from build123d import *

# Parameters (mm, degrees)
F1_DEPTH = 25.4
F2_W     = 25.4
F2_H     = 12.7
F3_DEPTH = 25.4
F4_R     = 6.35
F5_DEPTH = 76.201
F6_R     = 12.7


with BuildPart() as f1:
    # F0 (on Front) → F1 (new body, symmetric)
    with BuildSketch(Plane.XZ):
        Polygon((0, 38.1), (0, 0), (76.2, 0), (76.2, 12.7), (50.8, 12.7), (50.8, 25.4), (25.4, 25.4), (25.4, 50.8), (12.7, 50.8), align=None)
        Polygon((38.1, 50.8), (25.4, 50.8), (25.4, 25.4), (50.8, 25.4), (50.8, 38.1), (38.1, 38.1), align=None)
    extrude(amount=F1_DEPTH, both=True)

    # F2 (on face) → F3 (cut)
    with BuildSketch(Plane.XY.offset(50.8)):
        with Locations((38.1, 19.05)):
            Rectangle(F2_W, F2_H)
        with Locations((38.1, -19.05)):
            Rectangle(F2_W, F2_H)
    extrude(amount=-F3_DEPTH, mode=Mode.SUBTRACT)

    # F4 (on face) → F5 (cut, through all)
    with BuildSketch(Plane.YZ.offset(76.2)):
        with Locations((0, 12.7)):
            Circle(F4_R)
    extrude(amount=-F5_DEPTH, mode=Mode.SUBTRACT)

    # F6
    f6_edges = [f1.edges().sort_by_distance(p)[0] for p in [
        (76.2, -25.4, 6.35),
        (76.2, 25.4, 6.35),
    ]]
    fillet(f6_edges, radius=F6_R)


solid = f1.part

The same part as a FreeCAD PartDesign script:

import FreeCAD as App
import Part
import Sketcher

V = App.Vector
Q = App.Units.Quantity


def edges_at(feature, points):
    """Names of the edges that pass closest to the given points."""
    edges = feature.Shape.Edges
    near = lambda p: min(range(len(edges)), key=lambda i: edges[i].distToShape(Part.Vertex(*p))[0])
    return sorted({f"Edge{near(p) + 1}" for p in points})

doc = App.newDocument("Part")
params = doc.addObject("Spreadsheet::Sheet", "Params")
for row, (alias, value) in enumerate([
    ("sketch1_width", "3 in"),
    ("sketch1_width2", "1 in"),
    ("sketch1_width3", "0.5 in"),
    ("pad1_length", "2 in"),
    ("sketch2_width", "1 in"),
    ("sketch2_height", "0.5 in"),
    ("pocket1_length", "1 in"),
    ("sketch3_diameter", "0.5 in"),
    ("fillet_radius", "0.5 in"),
], start=1):
    params.set(f"A{row}", alias)
    params.set(f"B{row}", "=" + value)
    params.setAlias(f"B{row}", alias)

body = doc.addObject("PartDesign::Body", "Body")

sketch1 = body.newObject("Sketcher::SketchObject", "Sketch")
sketch1.AttachmentSupport = (doc.getObject("XZ_Plane"), [""])
sketch1.MapMode = "FlatFace"
sketch1.addGeometry([
    Part.LineSegment(V(0, 38, 0), V(0, 0, 0)),
    Part.LineSegment(V(0, 0, 0), V(76, 0, 0)),
    Part.LineSegment(V(76, 0, 0), V(76, 13, 0)),
    Part.LineSegment(V(76, 13, 0), V(51, 13, 0)),
    Part.LineSegment(V(51, 13, 0), V(51, 38, 0)),
    Part.LineSegment(V(51, 38, 0), V(38, 38, 0)),
    Part.LineSegment(V(38, 38, 0), V(38, 51, 0)),
    Part.LineSegment(V(38, 51, 0), V(13, 51, 0)),
    Part.LineSegment(V(13, 51, 0), V(0, 38, 0)),
], False)
sketch1.addConstraint([
    Sketcher.Constraint("Coincident", 0, 2, 1, 1),
    Sketcher.Constraint("Coincident", 1, 2, 2, 1),
    Sketcher.Constraint("Coincident", 2, 2, 3, 1),
    Sketcher.Constraint("Coincident", 3, 2, 4, 1),
    Sketcher.Constraint("Coincident", 4, 2, 5, 1),
    Sketcher.Constraint("Coincident", 5, 2, 6, 1),
    Sketcher.Constraint("Coincident", 6, 2, 7, 1),
    Sketcher.Constraint("Coincident", 7, 2, 8, 1),
    Sketcher.Constraint("Coincident", 8, 2, 0, 1),
    Sketcher.Constraint("Vertical", 0),
    Sketcher.Constraint("Horizontal", 1),
    Sketcher.Constraint("Vertical", 2),
    Sketcher.Constraint("Horizontal", 3),
    Sketcher.Constraint("Vertical", 4),
    Sketcher.Constraint("Horizontal", 5),
    Sketcher.Constraint("Vertical", 6),
    Sketcher.Constraint("Horizontal", 7),
    Sketcher.Constraint("Coincident", 0, 2, -1, 1),
    Sketcher.Constraint("Horizontal", 5, 2, 8, 2),
    Sketcher.Constraint("Equal", 3, 7),
    Sketcher.Constraint("Equal", 5, 2),
    Sketcher.Constraint("Equal", 7, 4),
    Sketcher.Constraint("Equal", 2, 6),
    Sketcher.Constraint("DistanceX", 1, 1, 1, 2, Q("3 in")),
    Sketcher.Constraint("DistanceX", 3, 2, 3, 1, Q("1 in")),
    Sketcher.Constraint("DistanceX", 5, 2, 5, 1, Q("0.5 in")),
])
sketch1.setExpression("Constraints[23]", "Params.sketch1_width")
sketch1.setExpression("Constraints[24]", "Params.sketch1_width2")
sketch1.setExpression("Constraints[25]", "Params.sketch1_width3")
pad1 = body.newObject("PartDesign::Pad", "Pad")
pad1.Profile = sketch1
pad1.setExpression("Length", "Params.pad1_length")
pad1.Midplane = True

sketch2 = body.newObject("Sketcher::SketchObject", "Sketch001")
sketch2.AttachmentSupport = (doc.getObject("XY_Plane"), [""])
sketch2.MapMode = "FlatFace"
sketch2.AttachmentOffset = App.Placement(V(0, 0, 2 * 25.4), App.Rotation())
sketch2.addGeometry([
    Part.LineSegment(V(25, 25, 0), V(25, 13, 0)),
    Part.LineSegment(V(25, 13, 0), V(51, 13, 0)),
    Part.LineSegment(V(51, 13, 0), V(51, 25, 0)),
    Part.LineSegment(V(51, 25, 0), V(25, 25, 0)),
    Part.LineSegment(V(25, -13, 0), V(25, -25, 0)),
    Part.LineSegment(V(25, -25, 0), V(51, -25, 0)),
    Part.LineSegment(V(51, -25, 0), V(51, -13, 0)),
    Part.LineSegment(V(51, -13, 0), V(25, -13, 0)),
], False)
sketch2.addConstraint([
    Sketcher.Constraint("Coincident", 0, 2, 1, 1),
    Sketcher.Constraint("Coincident", 1, 2, 2, 1),
    Sketcher.Constraint("Coincident", 2, 2, 3, 1),
    Sketcher.Constraint("Coincident", 3, 2, 0, 1),
    Sketcher.Constraint("Coincident", 4, 2, 5, 1),
    Sketcher.Constraint("Coincident", 5, 2, 6, 1),
    Sketcher.Constraint("Coincident", 6, 2, 7, 1),
    Sketcher.Constraint("Coincident", 7, 2, 4, 1),
    Sketcher.Constraint("Vertical", 0),
    Sketcher.Constraint("Horizontal", 1),
    Sketcher.Constraint("Vertical", 2),
    Sketcher.Constraint("Horizontal", 3),
    Sketcher.Constraint("Vertical", 4),
    Sketcher.Constraint("Horizontal", 5),
    Sketcher.Constraint("Vertical", 6),
    Sketcher.Constraint("Horizontal", 7),
    Sketcher.Constraint("Symmetric", 3, 2, 4, 2, -1),
    Sketcher.Constraint("Symmetric", 1, 2, 6, 2, -1),
    Sketcher.Constraint("DistanceX", 1, 1, 1, 2, Q("1 in")),
    Sketcher.Constraint("DistanceY", 0, 2, 0, 1, Q("0.5 in")),
    Sketcher.Constraint("DistanceX", -1, 1, 0, 2, Q("1 in")),
    Sketcher.Constraint("DistanceY", -1, 1, 2, 2, Q("1 in")),
])
sketch2.setExpression("Constraints[18]", "Params.sketch2_width")
sketch2.setExpression("Constraints[19]", "Params.sketch2_height")
pocket1 = body.newObject("PartDesign::Pocket", "Pocket")
pocket1.Profile = sketch2
pocket1.setExpression("Length", "Params.pocket1_length")

sketch3 = body.newObject("Sketcher::SketchObject", "Sketch002")
sketch3.AttachmentSupport = (doc.getObject("YZ_Plane"), [""])
sketch3.MapMode = "FlatFace"
sketch3.AttachmentOffset = App.Placement(V(0, 0, 3 * 25.4), App.Rotation())
sketch3.addGeometry(Part.Circle(V(0, 13, 0), V(0, 0, 1), 6), False)
sketch3.addConstraint([
    Sketcher.Constraint("PointOnObject", 0, 3, -2),
    Sketcher.Constraint("Diameter", 0, Q("0.5 in")),
    Sketcher.Constraint("DistanceY", -1, 1, 0, 3, Q("0.5 in")),
])
sketch3.setExpression("Constraints[1]", "Params.sketch3_diameter")
pocket2 = body.newObject("PartDesign::Pocket", "Pocket001")
pocket2.Profile = sketch3
pocket2.Type = "ThroughAll"
doc.recompute()

fillet = body.newObject("PartDesign::Fillet", "Fillet")
fillet.Base = (pocket2, edges_at(pocket2, [(76.2, -25.4, 6.35), (76.2, 25.4, 6.35)]))
fillet.setExpression("Radius", "Params.fillet_radius")

doc.recompute()
